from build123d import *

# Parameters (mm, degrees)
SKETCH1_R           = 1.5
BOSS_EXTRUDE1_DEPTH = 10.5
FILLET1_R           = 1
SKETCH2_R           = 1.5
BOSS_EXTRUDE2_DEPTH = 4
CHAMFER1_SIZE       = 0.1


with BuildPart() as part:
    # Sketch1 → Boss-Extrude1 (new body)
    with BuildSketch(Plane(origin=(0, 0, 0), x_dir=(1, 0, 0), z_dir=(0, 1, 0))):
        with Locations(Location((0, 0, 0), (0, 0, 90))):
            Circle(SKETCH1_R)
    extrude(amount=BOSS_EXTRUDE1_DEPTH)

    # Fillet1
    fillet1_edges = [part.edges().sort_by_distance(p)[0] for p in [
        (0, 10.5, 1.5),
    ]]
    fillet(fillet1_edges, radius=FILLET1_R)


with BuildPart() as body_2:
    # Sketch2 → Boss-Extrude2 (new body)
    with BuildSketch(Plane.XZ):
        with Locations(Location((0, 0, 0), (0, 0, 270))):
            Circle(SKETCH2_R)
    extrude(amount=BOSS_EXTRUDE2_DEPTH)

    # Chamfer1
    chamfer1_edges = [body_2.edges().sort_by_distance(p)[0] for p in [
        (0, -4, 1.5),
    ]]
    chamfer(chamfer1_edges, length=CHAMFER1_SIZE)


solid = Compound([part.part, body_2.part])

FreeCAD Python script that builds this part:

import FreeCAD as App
import Part
import Sketcher


def edges_at(feature, points):
    """Names of the edges that pass closest to the given points."""
    edges = feature.Shape.Edges
    near = lambda p: min(range(len(edges)), key=lambda i: edges[i].distToShape(Part.Vertex(*p))[0])
    return sorted({f"Edge{near(p) + 1}" for p in points})

doc = App.newDocument("Part")
body = doc.addObject("PartDesign::Body", "Body")

sketch1 = body.newObject("Sketcher::SketchObject", "Sketch")
sketch1.AttachmentSupport = (doc.getObject("XZ_Plane"), [""])
sketch1.MapMode = "FlatFace"
sketch1.addGeometry(Part.Circle(App.Vector(0, 0, 0), App.Vector(0, 0, 1), 1.5), False)
sketch1.addConstraint([
    Sketcher.Constraint("Coincident", 0, 3, -1, 1),
    Sketcher.Constraint("Diameter", 0, 3.0),
])
pad1 = body.newObject("PartDesign::Pad", "Pad")
pad1.Profile = sketch1
pad1.Length = 10.5
pad1.Reversed = True
doc.recompute()

fillet = body.newObject("PartDesign::Fillet", "Fillet")
fillet.Base = (pad1, edges_at(pad1, [(0, 10.5, 1.5)]))
fillet.Radius = 1
body2 = doc.addObject("PartDesign::Body", "Body001")

sketch2 = body2.newObject("Sketcher::SketchObject", "Sketch001")
sketch2.AttachmentSupport = (doc.getObject("XZ_Plane001"), [""])
sketch2.MapMode = "FlatFace"
sketch2.addGeometry(Part.Circle(App.Vector(0, 0, 0), App.Vector(0, 0, 1), 1.5), False)
sketch2.addConstraint([
    Sketcher.Constraint("Coincident", 0, 3, -1, 1),
    Sketcher.Constraint("Diameter", 0, 3.0),
])
pad2 = body2.newObject("PartDesign::Pad", "Pad001")
pad2.Profile = sketch2
pad2.Length = 4
doc.recompute()

chamfer = body2.newObject("PartDesign::Chamfer", "Chamfer")
chamfer.Base = (pad2, edges_at(pad2, [(0, -4, 1.5)]))
chamfer.Size = 0.1

doc.recompute()
